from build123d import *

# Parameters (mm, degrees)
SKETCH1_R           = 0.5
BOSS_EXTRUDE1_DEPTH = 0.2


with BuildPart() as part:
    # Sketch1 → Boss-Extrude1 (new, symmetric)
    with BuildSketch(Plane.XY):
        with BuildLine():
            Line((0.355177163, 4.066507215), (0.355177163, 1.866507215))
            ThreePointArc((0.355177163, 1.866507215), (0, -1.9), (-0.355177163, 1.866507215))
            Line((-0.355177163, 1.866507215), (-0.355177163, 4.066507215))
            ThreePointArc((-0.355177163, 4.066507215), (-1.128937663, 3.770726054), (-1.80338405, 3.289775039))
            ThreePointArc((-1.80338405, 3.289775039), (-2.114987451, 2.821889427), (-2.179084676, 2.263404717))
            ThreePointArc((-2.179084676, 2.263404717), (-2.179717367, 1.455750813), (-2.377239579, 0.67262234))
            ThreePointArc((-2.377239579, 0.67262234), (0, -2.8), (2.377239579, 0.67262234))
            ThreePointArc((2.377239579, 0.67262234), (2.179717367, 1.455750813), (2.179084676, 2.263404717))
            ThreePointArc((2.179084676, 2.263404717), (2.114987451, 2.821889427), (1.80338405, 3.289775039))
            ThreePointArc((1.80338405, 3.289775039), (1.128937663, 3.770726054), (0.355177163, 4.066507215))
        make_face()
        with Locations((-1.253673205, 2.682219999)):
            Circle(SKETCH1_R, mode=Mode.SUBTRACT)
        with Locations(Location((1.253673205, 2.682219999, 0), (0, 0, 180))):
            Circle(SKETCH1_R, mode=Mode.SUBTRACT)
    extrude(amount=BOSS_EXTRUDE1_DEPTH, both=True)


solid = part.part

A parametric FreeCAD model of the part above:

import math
import FreeCAD as App
import Part
import Sketcher
from FreeCAD import Vector
Q = App.Units.Quantity

doc = App.newDocument("Part")
body = doc.addObject("PartDesign::Body", "Body")

# Sketch on XY plane
sketch1 = body.newObject("Sketcher::SketchObject", "Sketch")
sketch1.AttachmentSupport = (doc.getObject("XY_Plane"), [""])
sketch1.MapMode = "FlatFace"
sketch1.addGeometry(Part.LineSegment(Vector(0.4, 4.1, 0), Vector(0.4, 1.9, 0)), False)
sketch1.addGeometry(Part.ArcOfCircle(Part.Circle(Vector(0, 0, 0), Vector(0, 0, 1), 1.9), math.radians(101), math.radians(439)), False)
sketch1.addGeometry(Part.LineSegment(Vector(-0.4, 1.9, 0), Vector(-0.4, 4.1, 0)), False)
sketch1.addGeometry(Part.ArcOfCircle(Part.Circle(Vector(0.4, 0.9, 0), Vector(0, 0, 1), 3.3), math.radians(104), math.radians(133)), False)
sketch1.addGeometry(Part.ArcOfCircle(Part.Circle(Vector(-1, 2.4, 0), Vector(0, 0, 1), 1.2), math.radians(133), math.radians(187)), False)
sketch1.addGeometry(Part.ArcOfCircle(Part.Circle(Vector(-5.4, 1.9, 0), Vector(0, 0, 1), 3.3), math.radians(-21), math.radians(7)), False)
sketch1.addGeometry(Part.ArcOfCircle(Part.Circle(Vector(0, -0.2, 0), Vector(0, 0, 1), 2.5), math.radians(159), math.radians(381)), False)
sketch1.addGeometry(Part.ArcOfCircle(Part.Circle(Vector(5.4, 1.9, 0), Vector(0, 0, 1), 3.3), math.radians(173), math.radians(201)), False)
sketch1.addGeometry(Part.ArcOfCircle(Part.Circle(Vector(1, 2.4, 0), Vector(0, 0, 1), 1.2), math.radians(-7), math.radians(47)), False)
sketch1.addGeometry(Part.ArcOfCircle(Part.Circle(Vector(-0.4, 0.9, 0), Vector(0, 0, 1), 3.3), math.radians(47), math.radians(76)), False)
sketch1.addGeometry(Part.Circle(Vector(-1.3, 2.7, 0), Vector(0, 0, 1), 0.5), False)
sketch1.addGeometry(Part.Circle(Vector(1.3, 2.7, 0), Vector(0, 0, 1), 0.5), False)
sketch1.addConstraint(Sketcher.Constraint("Coincident", 0, 2, 1, 2))
sketch1.addConstraint(Sketcher.Constraint("Coincident", 1, 1, 2, 1))
sketch1.addConstraint(Sketcher.Constraint("Coincident", 2, 2, 3, 1))
sketch1.addConstraint(Sketcher.Constraint("Tangent", 3, 2, 4, 1))
sketch1.addConstraint(Sketcher.Constraint("Tangent", 4, 2, 5, 2))
sketch1.addConstraint(Sketcher.Constraint("Tangent", 5, 1, 6, 1))
sketch1.addConstraint(Sketcher.Constraint("Tangent", 6, 2, 7, 2))
sketch1.addConstraint(Sketcher.Constraint("Tangent", 7, 1, 8, 1))
sketch1.addConstraint(Sketcher.Constraint("Tangent", 8, 2, 9, 1))
sketch1.addConstraint(Sketcher.Constraint("Coincident", 9, 2, 0, 1))
sketch1.addConstraint(Sketcher.Constraint("Vertical", 0))
sketch1.addConstraint(Sketcher.Constraint("Vertical", 2))
sketch1.addConstraint(Sketcher.Constraint("Coincident", 1, 3, -1, 1))
sketch1.addConstraint(Sketcher.Constraint("Equal", 5, 7))
sketch1.addConstraint(Sketcher.Constraint("Equal", 4, 8))
sketch1.addConstraint(Sketcher.Constraint("Equal", 3, 9))
sketch1.addConstraint(Sketcher.Constraint("Equal", 10, 11))
sketch1.addConstraint(Sketcher.Constraint("Symmetric", 5, 3, 7, 3, -2))
sketch1.addConstraint(Sketcher.Constraint("Symmetric", 3, 3, 9, 3, -2))
sketch1.addConstraint(Sketcher.Constraint("Symmetric", 10, 3, 11, 3, -2))
sketch1.addConstraint(Sketcher.Constraint("Horizontal", 0, 2, 1, 1))
sketch1.addConstraint(Sketcher.Constraint("Diameter", 10, Q("1 mm")))
sketch1.addConstraint(Sketcher.Constraint("Radius", 1, Q("1.9 mm")))
sketch1.addConstraint(Sketcher.Constraint("Radius", 6, Q("2.55 mm")))
sketch1.addConstraint(Sketcher.Constraint("DistanceY", 0, 2, 0, 1, Q("2.2 mm")))
sketch1.addConstraint(Sketcher.Constraint("DistanceY", 6, 3, -1, 1, Q("0.25 mm")))
sketch1.addConstraint(Sketcher.Constraint("Radius", 4, Q("1.198988 mm")))
sketch1.addConstraint(Sketcher.Constraint("Radius", 3, Q("3.265686 mm")))
sketch1.addConstraint(Sketcher.Constraint("Radius", 5, Q("3.287644 mm")))
sketch1.addConstraint(Sketcher.Constraint("DistanceX", 4, 2, 3, 2, Q("0.375701 mm")))
sketch1.addConstraint(Sketcher.Constraint("DistanceX", -1, 1, 3, 3, Q("0.41459 mm")))
sketch1.addConstraint(Sketcher.Constraint("DistanceY", -1, 1, 3, 3, Q("0.89284 mm")))
sketch1.addConstraint(Sketcher.Constraint("DistanceY", -1, 1, 10, 3, Q("2.68222 mm")))
sketch1.addConstraint(Sketcher.Constraint("DistanceX", 2, 2, 11, 3, Q("1.60885 mm")))
pad1 = body.newObject("PartDesign::Pad", "Pad")
pad1.Profile = sketch1
pad1.Length = 0.4
pad1.Midplane = True

doc.recompute()
